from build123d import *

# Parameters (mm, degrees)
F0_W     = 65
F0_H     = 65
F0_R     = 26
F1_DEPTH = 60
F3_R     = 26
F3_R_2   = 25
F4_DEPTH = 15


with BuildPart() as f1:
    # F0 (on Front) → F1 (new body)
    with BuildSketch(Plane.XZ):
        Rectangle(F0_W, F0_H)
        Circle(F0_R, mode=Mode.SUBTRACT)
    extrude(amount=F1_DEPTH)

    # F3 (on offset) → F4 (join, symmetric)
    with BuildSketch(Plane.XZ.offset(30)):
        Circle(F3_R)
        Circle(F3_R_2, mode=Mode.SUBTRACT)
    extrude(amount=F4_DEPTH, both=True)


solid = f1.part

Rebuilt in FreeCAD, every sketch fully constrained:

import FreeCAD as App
import Part
import Sketcher
from FreeCAD import Vector

doc = App.newDocument("Part")
body = doc.addObject("PartDesign::Body", "Body")

# Sketch on XZ plane
sketch1 = body.newObject("Sketcher::SketchObject", "Sketch")
sketch1.AttachmentSupport = (doc.getObject("XZ_Plane"), [""])
sketch1.MapMode = "FlatFace"
sketch1.addGeometry([
    Part.LineSegment(Vector(-32, 32, 0), Vector(-32, -32, 0)),  # 0
    Part.LineSegment(Vector(-32, -32, 0), Vector(32, -32, 0)),  # 1
    Part.LineSegment(Vector(32, -32, 0), Vector(32, 32, 0)),  # 2
    Part.LineSegment(Vector(32, 32, 0), Vector(-32, 32, 0)),  # 3
    Part.Circle(Vector(0, 0, 0), Vector(0, 0, 1), 26),  # 4
], False)
sketch1.addConstraint([
    Sketcher.Constraint("Coincident", 0, 2, 1, 1),
    Sketcher.Constraint("Coincident", 1, 2, 2, 1),
    Sketcher.Constraint("Coincident", 2, 2, 3, 1),
    Sketcher.Constraint("Coincident", 3, 2, 0, 1),
    Sketcher.Constraint("Vertical", 0),
    Sketcher.Constraint("Horizontal", 1),
    Sketcher.Constraint("Vertical", 2),
    Sketcher.Constraint("Horizontal", 3),
    Sketcher.Constraint("Coincident", 4, 3, -1, 1),
    Sketcher.Constraint("Symmetric", 0, 2, 2, 2, -1, 1),
    Sketcher.Constraint("Equal", 3, 0),
    Sketcher.Constraint("Diameter", 4, 52.0),
    Sketcher.Constraint("DistanceX", 1, 1, 1, 2, 65.0),
])
pad1 = body.newObject("PartDesign::Pad", "Pad")
pad1.Profile = sketch1
pad1.Length = 60

# Sketch on XZ plane
sketch2 = body.newObject("Sketcher::SketchObject", "Sketch001")
sketch2.AttachmentSupport = (doc.getObject("XZ_Plane"), [""])
sketch2.MapMode = "FlatFace"
sketch2.AttachmentOffset = App.Placement(Vector(0, 0, 30), App.Rotation())
sketch2.addGeometry([
    Part.Circle(Vector(0, 0, 0), Vector(0, 0, 1), 26),
    Part.Circle(Vector(0, 0, 0), Vector(0, 0, 1), 25),
], False)
sketch2.addConstraint([
    Sketcher.Constraint("Coincident", 0, 3, -1, 1),
    Sketcher.Constraint("Coincident", 1, 3, -1, 1),
    Sketcher.Constraint("Diameter", 0, 52.0),
    Sketcher.Constraint("Diameter", 1, 50.0),
])
pad2 = body.newObject("PartDesign::Pad", "Pad001")
pad2.Profile = sketch2
pad2.Length = 30
pad2.Midplane = True

doc.recompute()
